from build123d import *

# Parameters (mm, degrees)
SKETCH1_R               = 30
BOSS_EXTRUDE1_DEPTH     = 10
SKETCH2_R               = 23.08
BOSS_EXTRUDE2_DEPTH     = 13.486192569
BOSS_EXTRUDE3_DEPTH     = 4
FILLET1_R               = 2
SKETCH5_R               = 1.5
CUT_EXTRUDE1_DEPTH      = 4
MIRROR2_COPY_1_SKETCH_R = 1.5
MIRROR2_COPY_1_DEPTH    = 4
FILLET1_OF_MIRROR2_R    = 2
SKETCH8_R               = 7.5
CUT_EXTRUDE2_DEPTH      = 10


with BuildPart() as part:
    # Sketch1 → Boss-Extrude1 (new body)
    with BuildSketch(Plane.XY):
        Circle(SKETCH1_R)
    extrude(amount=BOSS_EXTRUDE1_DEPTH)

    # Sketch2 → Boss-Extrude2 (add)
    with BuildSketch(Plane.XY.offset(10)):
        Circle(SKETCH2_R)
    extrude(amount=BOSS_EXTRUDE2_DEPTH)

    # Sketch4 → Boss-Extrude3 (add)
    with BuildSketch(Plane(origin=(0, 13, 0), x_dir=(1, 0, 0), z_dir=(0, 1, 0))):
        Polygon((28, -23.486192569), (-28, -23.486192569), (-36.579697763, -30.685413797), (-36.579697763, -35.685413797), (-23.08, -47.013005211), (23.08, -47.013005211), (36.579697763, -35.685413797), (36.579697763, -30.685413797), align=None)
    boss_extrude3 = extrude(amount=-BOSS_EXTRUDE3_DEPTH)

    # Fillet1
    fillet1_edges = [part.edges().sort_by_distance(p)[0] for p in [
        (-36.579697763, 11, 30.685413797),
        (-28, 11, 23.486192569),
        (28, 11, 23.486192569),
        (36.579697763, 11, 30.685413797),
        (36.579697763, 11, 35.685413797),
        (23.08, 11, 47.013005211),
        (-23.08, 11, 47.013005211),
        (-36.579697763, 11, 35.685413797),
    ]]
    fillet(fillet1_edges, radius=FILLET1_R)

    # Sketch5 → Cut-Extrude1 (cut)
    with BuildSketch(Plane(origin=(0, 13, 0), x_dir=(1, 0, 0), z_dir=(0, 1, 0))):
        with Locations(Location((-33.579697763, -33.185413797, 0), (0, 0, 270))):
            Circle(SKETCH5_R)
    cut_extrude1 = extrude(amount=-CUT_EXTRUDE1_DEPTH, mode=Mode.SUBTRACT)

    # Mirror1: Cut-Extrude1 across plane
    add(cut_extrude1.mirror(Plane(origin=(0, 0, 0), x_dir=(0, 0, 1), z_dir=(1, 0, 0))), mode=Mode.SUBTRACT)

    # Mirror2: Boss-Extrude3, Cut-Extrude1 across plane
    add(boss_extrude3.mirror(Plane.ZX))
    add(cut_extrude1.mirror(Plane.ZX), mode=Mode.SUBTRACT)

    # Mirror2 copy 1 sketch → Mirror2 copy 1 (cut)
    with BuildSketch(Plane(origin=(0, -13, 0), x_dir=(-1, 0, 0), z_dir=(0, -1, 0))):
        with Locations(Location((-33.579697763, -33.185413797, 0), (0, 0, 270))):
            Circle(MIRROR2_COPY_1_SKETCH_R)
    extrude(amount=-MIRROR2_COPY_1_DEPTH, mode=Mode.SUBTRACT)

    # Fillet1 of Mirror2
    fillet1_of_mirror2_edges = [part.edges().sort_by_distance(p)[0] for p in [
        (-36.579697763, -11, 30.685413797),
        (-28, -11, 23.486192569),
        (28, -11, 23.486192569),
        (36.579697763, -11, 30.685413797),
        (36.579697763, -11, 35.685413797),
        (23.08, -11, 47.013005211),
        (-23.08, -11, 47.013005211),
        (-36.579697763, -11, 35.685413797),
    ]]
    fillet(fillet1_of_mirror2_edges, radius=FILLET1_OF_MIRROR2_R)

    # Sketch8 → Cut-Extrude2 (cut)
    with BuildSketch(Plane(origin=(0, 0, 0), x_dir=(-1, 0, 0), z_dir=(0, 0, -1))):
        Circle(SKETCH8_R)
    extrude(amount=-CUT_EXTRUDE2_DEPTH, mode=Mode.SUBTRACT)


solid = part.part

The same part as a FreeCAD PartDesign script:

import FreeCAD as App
import Part
import Sketcher

V = App.Vector
Q = App.Units.Quantity


def edges_at(feature, points):
    """Names of the edges that pass closest to the given points."""
    edges = feature.Shape.Edges
    near = lambda p: min(range(len(edges)), key=lambda i: edges[i].distToShape(Part.Vertex(*p))[0])
    return sorted({f"Edge{near(p) + 1}" for p in points})

doc = App.newDocument("Part")
body = doc.addObject("PartDesign::Body", "Body")

# Sketch on XY plane
sketch1 = body.newObject("Sketcher::SketchObject", "Sketch")
sketch1.AttachmentSupport = (doc.getObject("XY_Plane"), [""])
sketch1.MapMode = "FlatFace"
sketch1.addGeometry(Part.Circle(V(0, 0, 0), V(0, 0, 1), 30), False)
sketch1.addConstraint(Sketcher.Constraint("Coincident", 0, 3, -1, 1))
sketch1.addConstraint(Sketcher.Constraint("Diameter", 0, Q("60 mm")))
pad1 = body.newObject("PartDesign::Pad", "Pad")
pad1.Profile = sketch1
pad1.Length = 10

# Sketch on XY plane
sketch2 = body.newObject("Sketcher::SketchObject", "Sketch001")
sketch2.AttachmentSupport = (doc.getObject("XY_Plane"), [""])
sketch2.MapMode = "FlatFace"
sketch2.AttachmentOffset = App.Placement(V(0, 0, 10), App.Rotation())
sketch2.addGeometry(Part.Circle(V(0, 0, 0), V(0, 0, 1), 23), False)
sketch2.addConstraint(Sketcher.Constraint("Coincident", 0, 3, -1, 1))
sketch2.addConstraint(Sketcher.Constraint("Diameter", 0, Q("46.16 mm")))
pad2 = body.newObject("PartDesign::Pad", "Pad001")
pad2.Profile = sketch2
pad2.Length = 13.486193

# Sketch on XZ plane
sketch3 = body.newObject("Sketcher::SketchObject", "Sketch002")
sketch3.AttachmentSupport = (doc.getObject("XZ_Plane"), [""])
sketch3.MapMode = "FlatFace"
sketch3.AttachmentOffset = App.Placement(V(0, 0, -13), App.Rotation())
sketch3.addGeometry(Part.LineSegment(V(28, 23, 0), V(-28, 23, 0)), False)
sketch3.addGeometry(Part.LineSegment(V(-28, 23, 0), V(-37, 31, 0)), False)
sketch3.addGeometry(Part.LineSegment(V(-37, 31, 0), V(-37, 36, 0)), False)
sketch3.addGeometry(Part.LineSegment(V(-37, 36, 0), V(-23, 47, 0)), False)
sketch3.addGeometry(Part.LineSegment(V(-23, 47, 0), V(23, 47, 0)), False)
sketch3.addGeometry(Part.LineSegment(V(23, 47, 0), V(37, 36, 0)), False)
sketch3.addGeometry(Part.LineSegment(V(37, 36, 0), V(37, 31, 0)), False)
sketch3.addGeometry(Part.LineSegment(V(37, 31, 0), V(28, 23, 0)), False)
sketch3.addConstraint(Sketcher.Constraint("Coincident", 0, 2, 1, 1))
sketch3.addConstraint(Sketcher.Constraint("Coincident", 1, 2, 2, 1))
sketch3.addConstraint(Sketcher.Constraint("Coincident", 2, 2, 3, 1))
sketch3.addConstraint(Sketcher.Constraint("Coincident", 3, 2, 4, 1))
sketch3.addConstraint(Sketcher.Constraint("Coincident", 4, 2, 5, 1))
sketch3.addConstraint(Sketcher.Constraint("Coincident", 5, 2, 6, 1))
sketch3.addConstraint(Sketcher.Constraint("Coincident", 6, 2, 7, 1))
sketch3.addConstraint(Sketcher.Constraint("Coincident", 7, 2, 0, 1))
sketch3.addConstraint(Sketcher.Constraint("Horizontal", 0))
sketch3.addConstraint(Sketcher.Constraint("Vertical", 2))
sketch3.addConstraint(Sketcher.Constraint("Horizontal", 4))
sketch3.addConstraint(Sketcher.Constraint("Vertical", 6))
sketch3.addConstraint(Sketcher.Constraint("Symmetric", 2, 2, 5, 2, -2))
sketch3.addConstraint(Sketcher.Constraint("Parallel", 1, 5))
sketch3.addConstraint(Sketcher.Constraint("Parallel", 3, 7))
sketch3.addConstraint(Sketcher.Constraint("Horizontal", 1, 2, 6, 2))
sketch3.addConstraint(Sketcher.Constraint("Equal", 3, 5))
sketch3.addConstraint(Sketcher.Constraint("DistanceX", 0, 2, 0, 1, Q("56 mm")))
sketch3.addConstraint(Sketcher.Constraint("DistanceY", 2, 1, 2, 2, Q("5 mm")))
sketch3.addConstraint(Sketcher.Constraint("Angle", 1, Q("140 deg")))
sketch3.addConstraint(Sketcher.Constraint("Distance", 1, Q("11.2 mm")))
sketch3.addConstraint(Sketcher.Constraint("DistanceX", 4, 1, 4, 2, Q("46.16 mm")))
sketch3.addConstraint(Sketcher.Constraint("DistanceY", -1, 1, 0, 2, Q("23.486193 mm")))
pad3 = body.newObject("PartDesign::Pad", "Pad002")
pad3.Profile = sketch3
pad3.Length = 4
doc.recompute()

fillet = body.newObject("PartDesign::Fillet", "Fillet")
fillet.Base = (pad3, edges_at(pad3, [
    (-36.58, 11, 30.685),
    (-28, 11, 23.486),
    (28, 11, 23.486),
    (36.58, 11, 30.685),
    (36.58, 11, 35.685),
    (23.08, 11, 47.013),
    (-23.08, 11, 47.013),
    (-36.58, 11, 35.685),
]))
fillet.Radius = 2

# Sketch on XZ plane
sketch4 = body.newObject("Sketcher::SketchObject", "Sketch003")
sketch4.AttachmentSupport = (doc.getObject("XZ_Plane"), [""])
sketch4.MapMode = "FlatFace"
sketch4.AttachmentOffset = App.Placement(V(0, 0, -13), App.Rotation())
sketch4.addGeometry(Part.Circle(V(-33.6, 33.2, 0), V(0, 0, 1), 1.5), False)
sketch4.addConstraint(Sketcher.Constraint("Diameter", 0, Q("3 mm")))
sketch4.addConstraint(Sketcher.Constraint("DistanceX", 0, 3, -1, 1, Q("33.579698 mm")))
sketch4.addConstraint(Sketcher.Constraint("DistanceY", -1, 1, 0, 3, Q("33.185414 mm")))
pocket1 = body.newObject("PartDesign::Pocket", "Pocket")
pocket1.Profile = sketch4
pocket1.Length = 4
pocket1.Reversed = True
doc.recompute()

mirrored = body.newObject("PartDesign::Mirrored", "Mirrored")
mirrored.Originals = [pocket1]
mirrored.MirrorPlane = (doc.getObject("YZ_Plane"), [""])
body.Tip = mirrored
doc.recompute()

mirrored2 = body.newObject("PartDesign::Mirrored", "Mirrored001")
mirrored2.Originals = [pad3, pocket1]
mirrored2.MirrorPlane = (doc.getObject("XZ_Plane"), [""])
body.Tip = mirrored2

# Sketch on XZ plane
sketch5 = body.newObject("Sketcher::SketchObject", "Sketch004")
sketch5.AttachmentSupport = (doc.getObject("XZ_Plane"), [""])
sketch5.MapMode = "FlatFace"
sketch5.AttachmentOffset = App.Placement(V(0, 0, 13), App.Rotation())
sketch5.addGeometry(Part.Circle(V(33.6, 33.2, 0), V(0, 0, 1), 1.5), False)
sketch5.addConstraint(Sketcher.Constraint("Diameter", 0, Q("3 mm")))
sketch5.addConstraint(Sketcher.Constraint("DistanceX", -1, 1, 0, 3, Q("33.579698 mm")))
sketch5.addConstraint(Sketcher.Constraint("DistanceY", -1, 1, 0, 3, Q("33.185414 mm")))
pocket2 = body.newObject("PartDesign::Pocket", "Pocket001")
pocket2.Profile = sketch5
pocket2.Length = 4
doc.recompute()

fillet2 = body.newObject("PartDesign::Fillet", "Fillet001")
fillet2.Base = (pocket2, edges_at(pocket2, [
    (-36.58, -11, 30.685),
    (-28, -11, 23.486),
    (28, -11, 23.486),
    (36.58, -11, 30.685),
    (36.58, -11, 35.685),
    (23.08, -11, 47.013),
    (-23.08, -11, 47.013),
    (-36.58, -11, 35.685),
]))
fillet2.Radius = 2

# Sketch on XY plane
sketch6 = body.newObject("Sketcher::SketchObject", "Sketch005")
sketch6.AttachmentSupport = (doc.getObject("XY_Plane"), [""])
sketch6.MapMode = "FlatFace"
sketch6.addGeometry(Part.Circle(V(0, 0, 0), V(0, 0, 1), 8), False)
sketch6.addConstraint(Sketcher.Constraint("Coincident", 0, 3, -1, 1))
sketch6.addConstraint(Sketcher.Constraint("Diameter", 0, Q("15 mm")))
pocket3 = body.newObject("PartDesign::Pocket", "Pocket002")
pocket3.Profile = sketch6
pocket3.Length = 10
pocket3.Reversed = True

doc.recompute()
